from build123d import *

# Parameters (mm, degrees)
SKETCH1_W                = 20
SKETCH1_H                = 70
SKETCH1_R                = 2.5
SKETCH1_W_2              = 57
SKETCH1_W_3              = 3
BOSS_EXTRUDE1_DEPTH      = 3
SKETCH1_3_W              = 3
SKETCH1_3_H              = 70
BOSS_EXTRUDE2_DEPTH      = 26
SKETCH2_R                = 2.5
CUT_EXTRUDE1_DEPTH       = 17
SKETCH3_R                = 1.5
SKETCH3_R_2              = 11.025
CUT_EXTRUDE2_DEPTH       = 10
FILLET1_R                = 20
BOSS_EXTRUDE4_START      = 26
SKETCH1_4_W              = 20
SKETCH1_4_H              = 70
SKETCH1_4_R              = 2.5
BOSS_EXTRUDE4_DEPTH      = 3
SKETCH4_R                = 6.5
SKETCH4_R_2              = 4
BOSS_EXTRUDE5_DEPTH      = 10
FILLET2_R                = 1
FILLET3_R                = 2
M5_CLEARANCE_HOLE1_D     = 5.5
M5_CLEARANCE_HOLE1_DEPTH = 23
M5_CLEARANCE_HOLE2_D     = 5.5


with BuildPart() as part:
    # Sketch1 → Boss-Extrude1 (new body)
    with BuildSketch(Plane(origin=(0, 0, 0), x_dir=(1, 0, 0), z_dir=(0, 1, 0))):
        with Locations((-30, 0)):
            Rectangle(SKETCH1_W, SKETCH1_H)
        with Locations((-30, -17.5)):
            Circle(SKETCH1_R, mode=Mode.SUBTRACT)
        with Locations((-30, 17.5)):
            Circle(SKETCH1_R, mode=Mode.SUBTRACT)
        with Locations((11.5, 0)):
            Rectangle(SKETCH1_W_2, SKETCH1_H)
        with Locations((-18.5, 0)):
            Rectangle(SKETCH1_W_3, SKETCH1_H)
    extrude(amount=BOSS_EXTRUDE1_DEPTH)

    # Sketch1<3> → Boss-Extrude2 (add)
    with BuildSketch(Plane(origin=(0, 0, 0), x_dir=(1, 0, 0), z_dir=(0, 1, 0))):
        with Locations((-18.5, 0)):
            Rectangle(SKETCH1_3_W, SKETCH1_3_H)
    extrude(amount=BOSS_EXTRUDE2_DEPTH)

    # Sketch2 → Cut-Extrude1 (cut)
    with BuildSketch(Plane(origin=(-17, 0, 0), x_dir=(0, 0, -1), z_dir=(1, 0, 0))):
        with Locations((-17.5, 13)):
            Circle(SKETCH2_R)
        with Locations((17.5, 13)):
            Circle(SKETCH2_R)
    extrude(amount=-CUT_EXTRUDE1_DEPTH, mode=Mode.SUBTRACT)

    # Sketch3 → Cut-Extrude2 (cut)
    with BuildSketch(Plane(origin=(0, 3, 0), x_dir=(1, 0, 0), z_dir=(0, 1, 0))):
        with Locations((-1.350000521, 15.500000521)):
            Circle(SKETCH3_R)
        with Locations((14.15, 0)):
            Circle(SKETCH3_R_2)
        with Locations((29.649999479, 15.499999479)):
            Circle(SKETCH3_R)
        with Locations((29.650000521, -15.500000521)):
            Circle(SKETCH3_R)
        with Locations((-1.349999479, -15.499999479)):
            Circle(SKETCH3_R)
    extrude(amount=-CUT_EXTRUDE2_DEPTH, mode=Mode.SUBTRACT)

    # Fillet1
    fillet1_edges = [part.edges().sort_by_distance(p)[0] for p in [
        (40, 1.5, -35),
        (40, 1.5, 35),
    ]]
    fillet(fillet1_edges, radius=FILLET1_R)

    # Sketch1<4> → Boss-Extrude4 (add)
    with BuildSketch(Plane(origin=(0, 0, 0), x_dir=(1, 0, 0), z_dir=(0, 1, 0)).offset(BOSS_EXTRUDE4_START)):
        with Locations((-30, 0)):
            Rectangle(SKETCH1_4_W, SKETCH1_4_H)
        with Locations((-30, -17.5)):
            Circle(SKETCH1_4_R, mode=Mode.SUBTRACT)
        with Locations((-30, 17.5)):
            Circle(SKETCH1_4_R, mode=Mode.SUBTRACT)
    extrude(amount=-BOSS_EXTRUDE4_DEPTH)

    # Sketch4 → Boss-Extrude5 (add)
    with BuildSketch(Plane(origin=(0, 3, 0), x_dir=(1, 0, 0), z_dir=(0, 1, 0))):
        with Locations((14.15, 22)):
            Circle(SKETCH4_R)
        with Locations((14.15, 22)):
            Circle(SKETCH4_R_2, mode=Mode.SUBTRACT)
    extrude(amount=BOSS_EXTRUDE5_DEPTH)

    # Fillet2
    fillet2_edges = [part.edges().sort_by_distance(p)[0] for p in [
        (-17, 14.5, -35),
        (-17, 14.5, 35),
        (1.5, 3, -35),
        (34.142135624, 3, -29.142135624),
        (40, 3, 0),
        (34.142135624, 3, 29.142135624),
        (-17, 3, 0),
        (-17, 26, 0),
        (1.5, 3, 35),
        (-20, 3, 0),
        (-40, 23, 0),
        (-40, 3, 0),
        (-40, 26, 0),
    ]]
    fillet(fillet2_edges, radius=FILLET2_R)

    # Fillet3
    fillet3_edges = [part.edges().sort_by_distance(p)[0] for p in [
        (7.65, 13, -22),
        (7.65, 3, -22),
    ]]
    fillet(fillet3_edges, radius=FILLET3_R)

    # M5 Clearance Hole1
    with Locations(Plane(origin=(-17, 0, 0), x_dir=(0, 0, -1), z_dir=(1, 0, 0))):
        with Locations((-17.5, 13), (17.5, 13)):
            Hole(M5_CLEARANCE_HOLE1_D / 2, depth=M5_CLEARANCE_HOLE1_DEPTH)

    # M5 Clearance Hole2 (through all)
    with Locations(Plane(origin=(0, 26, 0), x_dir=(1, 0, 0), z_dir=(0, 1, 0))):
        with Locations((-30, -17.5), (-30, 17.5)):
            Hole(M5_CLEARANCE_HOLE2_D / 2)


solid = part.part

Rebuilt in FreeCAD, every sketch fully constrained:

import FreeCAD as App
import Part
import Sketcher


def edges_at(feature, points):
    """Names of the edges that pass closest to the given points."""
    edges = feature.Shape.Edges
    near = lambda p: min(range(len(edges)), key=lambda i: edges[i].distToShape(Part.Vertex(*p))[0])
    return sorted({f"Edge{near(p) + 1}" for p in points})

doc = App.newDocument("Part")
params = doc.addObject("Spreadsheet::Sheet", "Params")
for row, (alias, value) in enumerate([
    ("sketch1_diameter", "5 mm"),
    ("sketch1_width", "80 mm"),
    ("sketch1_height", "70 mm"),
    ("pad1_length", "3 mm"),
    ("sketch2_width", "3 mm"),
    ("sketch2_height", "70 mm"),
    ("pad2_length", "26 mm"),
    ("sketch3_diameter", "5 mm"),
    ("pocket1_length", "17 mm"),
    ("sketch4_diameter", "3 mm"),
    ("sketch4_diameter2", "22.05 mm"),
    ("pocket2_length", "10 mm"),
    ("fillet_radius", "20 mm"),
    ("sketch5_diameter", "5 mm"),
    ("sketch5_width", "20 mm"),
    ("sketch5_height", "70 mm"),
    ("pad3_length", "3 mm"),
    ("sketch6_diameter", "13 mm"),
    ("sketch6_diameter2", "8 mm"),
    ("pad4_length", "10 mm"),
    ("fillet2_radius", "1 mm"),
    ("fillet3_radius", "2 mm"),
    ("sketch7_diameter", "5.5 mm"),
    ("hole_diameter", "5.5 mm"),
    ("hole_depth", "23 mm"),
    ("sketch8_diameter", "5.5 mm"),
    ("hole2_diameter", "5.5 mm"),
], start=1):
    params.set(f"A{row}", alias)
    params.set(f"B{row}", "=" + value)
    params.setAlias(f"B{row}", alias)

body = doc.addObject("PartDesign::Body", "Body")

# Sketch on XZ plane
sketch1 = body.newObject("Sketcher::SketchObject", "Sketch")
sketch1.AttachmentSupport = (doc.getObject("XZ_Plane"), [""])
sketch1.MapMode = "FlatFace"
sketch1.addGeometry(Part.LineSegment(App.Vector(-40, -35, 0), App.Vector(-40, 35, 0)), False)
sketch1.addGeometry(Part.LineSegment(App.Vector(-40, 35, 0), App.Vector(40, 35, 0)), False)
sketch1.addGeometry(Part.LineSegment(App.Vector(40, 35, 0), App.Vector(40, -35, 0)), False)
sketch1.addGeometry(Part.LineSegment(App.Vector(40, -35, 0), App.Vector(-40, -35, 0)), False)
sketch1.addGeometry(Part.Circle(App.Vector(-30, 17.5, 0), App.Vector(0, 0, 1), 2.5), False)
sketch1.addGeometry(Part.Circle(App.Vector(-30, -17.5, 0), App.Vector(0, 0, 1), 2.5), False)
sketch1.addConstraint(Sketcher.Constraint("Coincident", 0, 2, 1, 1))
sketch1.addConstraint(Sketcher.Constraint("Coincident", 1, 2, 2, 1))
sketch1.addConstraint(Sketcher.Constraint("Coincident", 2, 2, 3, 1))
sketch1.addConstraint(Sketcher.Constraint("Coincident", 3, 2, 0, 1))
sketch1.addConstraint(Sketcher.Constraint("Vertical", 0))
sketch1.addConstraint(Sketcher.Constraint("Horizontal", 1))
sketch1.addConstraint(Sketcher.Constraint("Vertical", 2))
sketch1.addConstraint(Sketcher.Constraint("Horizontal", 3))
sketch1.addConstraint(Sketcher.Constraint("Equal", 4, 5))
sketch1.addConstraint(Sketcher.Constraint("Symmetric", 0, 2, 2, 2, -1, 1))
sketch1.addConstraint(Sketcher.Constraint("Symmetric", 4, 3, 5, 3, -1))
sketch1.addConstraint(Sketcher.Constraint("Diameter", 4, 5.0))
sketch1.addConstraint(Sketcher.Constraint("DistanceX", 1, 1, 1, 2, 80.0))
sketch1.addConstraint(Sketcher.Constraint("DistanceY", 0, 1, 0, 2, 70.0))
sketch1.addConstraint(Sketcher.Constraint("DistanceX", 4, 3, -1, 1, 30.0))
sketch1.addConstraint(Sketcher.Constraint("DistanceY", 5, 3, 4, 3, 35.0))
sketch1.setExpression("Constraints[11]", "Params.sketch1_diameter")
sketch1.setExpression("Constraints[12]", "Params.sketch1_width")
sketch1.setExpression("Constraints[13]", "Params.sketch1_height")
pad1 = body.newObject("PartDesign::Pad", "Pad")
pad1.Profile = sketch1
pad1.setExpression("Length", "Params.pad1_length")
pad1.Reversed = True

# Sketch on XZ plane
sketch2 = body.newObject("Sketcher::SketchObject", "Sketch001")
sketch2.AttachmentSupport = (doc.getObject("XZ_Plane"), [""])
sketch2.MapMode = "FlatFace"
sketch2.addGeometry(Part.LineSegment(App.Vector(-20, -35, 0), App.Vector(-20, 35, 0)), False)
sketch2.addGeometry(Part.LineSegment(App.Vector(-20, 35, 0), App.Vector(-17, 35, 0)), False)
sketch2.addGeometry(Part.LineSegment(App.Vector(-17, 35, 0), App.Vector(-17, -35, 0)), False)
sketch2.addGeometry(Part.LineSegment(App.Vector(-17, -35, 0), App.Vector(-20, -35, 0)), False)
sketch2.addConstraint(Sketcher.Constraint("Coincident", 0, 2, 1, 1))
sketch2.addConstraint(Sketcher.Constraint("Coincident", 1, 2, 2, 1))
sketch2.addConstraint(Sketcher.Constraint("Coincident", 2, 2, 3, 1))
sketch2.addConstraint(Sketcher.Constraint("Coincident", 3, 2, 0, 1))
sketch2.addConstraint(Sketcher.Constraint("Vertical", 0))
sketch2.addConstraint(Sketcher.Constraint("Horizontal", 1))
sketch2.addConstraint(Sketcher.Constraint("Vertical", 2))
sketch2.addConstraint(Sketcher.Constraint("Horizontal", 3))
sketch2.addConstraint(Sketcher.Constraint("DistanceX", 1, 1, 1, 2, 3.0))
sketch2.addConstraint(Sketcher.Constraint("DistanceY", 0, 1, 0, 2, 70.0))
sketch2.addConstraint(Sketcher.Constraint("DistanceX", 0, 2, -1, 1, 20.0))
sketch2.addConstraint(Sketcher.Constraint("DistanceY", -1, 1, 0, 2, 35.0))
sketch2.setExpression("Constraints[8]", "Params.sketch2_width")
sketch2.setExpression("Constraints[9]", "Params.sketch2_height")
pad2 = body.newObject("PartDesign::Pad", "Pad001")
pad2.Profile = sketch2
pad2.setExpression("Length", "Params.pad2_length")
pad2.Reversed = True

# Sketch on YZ plane
sketch3 = body.newObject("Sketcher::SketchObject", "Sketch002")
sketch3.AttachmentSupport = (doc.getObject("YZ_Plane"), [""])
sketch3.MapMode = "FlatFace"
sketch3.AttachmentOffset = App.Placement(App.Vector(0, 0, -17), App.Rotation())
sketch3.addGeometry(Part.Circle(App.Vector(13, 17.5, 0), App.Vector(0, 0, 1), 2.5), False)
sketch3.addGeometry(Part.Circle(App.Vector(13, -17.5, 0), App.Vector(0, 0, 1), 2.5), False)
sketch3.addConstraint(Sketcher.Constraint("Equal", 0, 1))
sketch3.addConstraint(Sketcher.Constraint("Symmetric", 0, 3, 1, 3, -1))
sketch3.addConstraint(Sketcher.Constraint("Diameter", 0, 5.0))
sketch3.addConstraint(Sketcher.Constraint("DistanceX", -1, 1, 0, 3, 13.0))
sketch3.addConstraint(Sketcher.Constraint("DistanceY", 1, 3, 0, 3, 35.0))
sketch3.setExpression("Constraints[2]", "Params.sketch3_diameter")
pocket1 = body.newObject("PartDesign::Pocket", "Pocket")
pocket1.Profile = sketch3
pocket1.setExpression("Length", "Params.pocket1_length")

# Sketch on XZ plane
sketch4 = body.newObject("Sketcher::SketchObject", "Sketch003")
sketch4.AttachmentSupport = (doc.getObject("XZ_Plane"), [""])
sketch4.MapMode = "FlatFace"
sketch4.AttachmentOffset = App.Placement(App.Vector(0, 0, -3), App.Rotation())
sketch4.addGeometry(Part.Circle(App.Vector(-1.4, -15.5, 0), App.Vector(0, 0, 1), 1.5), False)
sketch4.addGeometry(Part.Circle(App.Vector(14.2, 0, 0), App.Vector(0, 0, 1), 11), False)
sketch4.addGeometry(Part.Circle(App.Vector(29.6, -15.5, 0), App.Vector(0, 0, 1), 1.5), False)
sketch4.addGeometry(Part.Circle(App.Vector(29.7, 15.5, 0), App.Vector(0, 0, 1), 1.5), False)
sketch4.addGeometry(Part.Circle(App.Vector(-1.3, 15.5, 0), App.Vector(0, 0, 1), 1.5), False)
sketch4.addConstraint(Sketcher.Constraint("Equal", 0, 2))
sketch4.addConstraint(Sketcher.Constraint("Equal", 2, 3))
sketch4.addConstraint(Sketcher.Constraint("Equal", 3, 4))
sketch4.addConstraint(Sketcher.Constraint("Symmetric", 2, 3, 3, 3, -1))
sketch4.addConstraint(Sketcher.Constraint("Symmetric", 0, 3, 4, 3, -1))
sketch4.addConstraint(Sketcher.Constraint("PointOnObject", 1, 3, -1))
sketch4.addConstraint(Sketcher.Constraint("Horizontal", 0, 3, 2, 3))
sketch4.addConstraint(Sketcher.Constraint("Diameter", 0, 3.0))
sketch4.addConstraint(Sketcher.Constraint("Diameter", 1, 22.05))
sketch4.addConstraint(Sketcher.Constraint("DistanceX", 0, 3, 2, 3, 31.0))
sketch4.addConstraint(Sketcher.Constraint("DistanceY", 2, 3, 3, 3, 31.0))
sketch4.addConstraint(Sketcher.Constraint("DistanceX", 0, 3, 1, 3, 15.500001))
sketch4.addConstraint(Sketcher.Constraint("DistanceX", 0, 3, -1, 1, 1.350001))
sketch4.setExpression("Constraints[7]", "Params.sketch4_diameter")
sketch4.setExpression("Constraints[8]", "Params.sketch4_diameter2")
pocket2 = body.newObject("PartDesign::Pocket", "Pocket001")
pocket2.Profile = sketch4
pocket2.setExpression("Length", "Params.pocket2_length")
pocket2.Reversed = True
doc.recompute()

fillet = body.newObject("PartDesign::Fillet", "Fillet")
fillet.Base = (pocket2, edges_at(pocket2, [(40, 1.5, -35), (40, 1.5, 35)]))
fillet.setExpression("Radius", "Params.fillet_radius")

# Sketch on XZ plane
sketch5 = body.newObject("Sketcher::SketchObject", "Sketch004")
sketch5.AttachmentSupport = (doc.getObject("XZ_Plane"), [""])
sketch5.MapMode = "FlatFace"
sketch5.AttachmentOffset = App.Placement(App.Vector(0, 0, -26), App.Rotation())
sketch5.addGeometry(Part.LineSegment(App.Vector(-40, -35, 0), App.Vector(-40, 35, 0)), False)
sketch5.addGeometry(Part.LineSegment(App.Vector(-40, 35, 0), App.Vector(-20, 35, 0)), False)
sketch5.addGeometry(Part.LineSegment(App.Vector(-20, 35, 0), App.Vector(-20, -35, 0)), False)
sketch5.addGeometry(Part.LineSegment(App.Vector(-20, -35, 0), App.Vector(-40, -35, 0)), False)
sketch5.addGeometry(Part.Circle(App.Vector(-30, 17.5, 0), App.Vector(0, 0, 1), 2.5), False)
sketch5.addGeometry(Part.Circle(App.Vector(-30, -17.5, 0), App.Vector(0, 0, 1), 2.5), False)
sketch5.addConstraint(Sketcher.Constraint("Coincident", 0, 2, 1, 1))
sketch5.addConstraint(Sketcher.Constraint("Coincident", 1, 2, 2, 1))
sketch5.addConstraint(Sketcher.Constraint("Coincident", 2, 2, 3, 1))
sketch5.addConstraint(Sketcher.Constraint("Coincident", 3, 2, 0, 1))
sketch5.addConstraint(Sketcher.Constraint("Vertical", 0))
sketch5.addConstraint(Sketcher.Constraint("Horizontal", 1))
sketch5.addConstraint(Sketcher.Constraint("Vertical", 2))
sketch5.addConstraint(Sketcher.Constraint("Horizontal", 3))
sketch5.addConstraint(Sketcher.Constraint("Equal", 4, 5))
sketch5.addConstraint(Sketcher.Constraint("Symmetric", 4, 3, 5, 3, -1))
sketch5.addConstraint(Sketcher.Constraint("Diameter", 4, 5.0))
sketch5.addConstraint(Sketcher.Constraint("DistanceX", 1, 1, 1, 2, 20.0))
sketch5.addConstraint(Sketcher.Constraint("DistanceY", 0, 1, 0, 2, 70.0))
sketch5.addConstraint(Sketcher.Constraint("DistanceX", 4, 3, -1, 1, 30.0))
sketch5.addConstraint(Sketcher.Constraint("DistanceX", 0, 2, -1, 1, 40.0))
sketch5.addConstraint(Sketcher.Constraint("DistanceY", -1, 1, 0, 2, 35.0))
sketch5.addConstraint(Sketcher.Constraint("DistanceY", 5, 3, 4, 3, 35.0))
sketch5.setExpression("Constraints[10]", "Params.sketch5_diameter")
sketch5.setExpression("Constraints[11]", "Params.sketch5_width")
sketch5.setExpression("Constraints[12]", "Params.sketch5_height")
pad3 = body.newObject("PartDesign::Pad", "Pad002")
pad3.Profile = sketch5
pad3.setExpression("Length", "Params.pad3_length")

# Sketch on XZ plane
sketch6 = body.newObject("Sketcher::SketchObject", "Sketch005")
sketch6.AttachmentSupport = (doc.getObject("XZ_Plane"), [""])
sketch6.MapMode = "FlatFace"
sketch6.AttachmentOffset = App.Placement(App.Vector(0, 0, -3), App.Rotation())
sketch6.addGeometry(Part.Circle(App.Vector(14.2, -22, 0), App.Vector(0, 0, 1), 6.5), False)
sketch6.addGeometry(Part.Circle(App.Vector(14.2, -22, 0), App.Vector(0, 0, 1), 4), False)
sketch6.addConstraint(Sketcher.Constraint("Coincident", 1, 3, 0, 3))
sketch6.addConstraint(Sketcher.Constraint("Diameter", 0, 13.0))
sketch6.addConstraint(Sketcher.Constraint("Diameter", 1, 8.0))
sketch6.addConstraint(Sketcher.Constraint("DistanceY", 0, 3, -1, 1, 22.0))
sketch6.addConstraint(Sketcher.Constraint("DistanceX", -1, 1, 0, 3, 14.15))
sketch6.setExpression("Constraints[1]", "Params.sketch6_diameter")
sketch6.setExpression("Constraints[2]", "Params.sketch6_diameter2")
pad4 = body.newObject("PartDesign::Pad", "Pad003")
pad4.Profile = sketch6
pad4.setExpression("Length", "Params.pad4_length")
pad4.Reversed = True
doc.recompute()

fillet2 = body.newObject("PartDesign::Fillet", "Fillet001")
fillet2.Base = (pad4, edges_at(pad4, [
    (-17, 14.5, -35),
    (-17, 14.5, 35),
    (1.5, 3, -35),
    (34.142, 3, -29.142),
    (40, 3, 0),
    (34.142, 3, 29.142),
    (-17, 3, 0),
    (-17, 26, 0),
    (1.5, 3, 35),
    (-20, 3, 0),
    (-40, 23, 0),
    (-40, 3, 0),
    (-40, 26, 0),
]))
fillet2.setExpression("Radius", "Params.fillet2_radius")
doc.recompute()

fillet3 = body.newObject("PartDesign::Fillet", "Fillet002")
fillet3.Base = (fillet2, edges_at(fillet2, [(7.65, 13, -22), (7.65, 3, -22)]))
fillet3.setExpression("Radius", "Params.fillet3_radius")

# Sketch on YZ plane
sketch7 = body.newObject("Sketcher::SketchObject", "Sketch006")
sketch7.AttachmentSupport = (doc.getObject("YZ_Plane"), [""])
sketch7.MapMode = "FlatFace"
sketch7.AttachmentOffset = App.Placement(App.Vector(0, 0, -17), App.Rotation())
sketch7.addGeometry(Part.Circle(App.Vector(13, 17.5, 0), App.Vector(0, 0, 1), 2.8), False)
sketch7.addGeometry(Part.Circle(App.Vector(13, -17.5, 0), App.Vector(0, 0, 1), 2.8), False)
sketch7.addConstraint(Sketcher.Constraint("Equal", 0, 1))
sketch7.addConstraint(Sketcher.Constraint("Symmetric", 0, 3, 1, 3, -1))
sketch7.addConstraint(Sketcher.Constraint("Diameter", 0, 5.5))
sketch7.addConstraint(Sketcher.Constraint("DistanceX", -1, 1, 0, 3, 13.0))
sketch7.addConstraint(Sketcher.Constraint("DistanceY", 1, 3, 0, 3, 35.0))
sketch7.setExpression("Constraints[2]", "Params.sketch7_diameter")
doc.recompute()
hole = body.newObject("PartDesign::Hole", "Hole")
hole.Profile = sketch7
hole.ThreadType = "None"
hole.setExpression("Diameter", "Params.hole_diameter")
hole.DepthType = "Dimension"
hole.setExpression("Depth", "Params.hole_depth")
hole.DrillPoint = "Flat"

# Sketch on XZ plane
sketch8 = body.newObject("Sketcher::SketchObject", "Sketch007")
sketch8.AttachmentSupport = (doc.getObject("XZ_Plane"), [""])
sketch8.MapMode = "FlatFace"
sketch8.AttachmentOffset = App.Placement(App.Vector(0, 0, -26), App.Rotation())
sketch8.addGeometry(Part.Circle(App.Vector(-30, 17.5, 0), App.Vector(0, 0, 1), 2.8), False)
sketch8.addGeometry(Part.Circle(App.Vector(-30, -17.5, 0), App.Vector(0, 0, 1), 2.8), False)
sketch8.addConstraint(Sketcher.Constraint("Equal", 0, 1))
sketch8.addConstraint(Sketcher.Constraint("Symmetric", 0, 3, 1, 3, -1))
sketch8.addConstraint(Sketcher.Constraint("Diameter", 0, 5.5))
sketch8.addConstraint(Sketcher.Constraint("DistanceX", 0, 3, -1, 1, 30.0))
sketch8.addConstraint(Sketcher.Constraint("DistanceY", 1, 3, 0, 3, 35.0))
sketch8.setExpression("Constraints[2]", "Params.sketch8_diameter")
doc.recompute()
hole2 = body.newObject("PartDesign::Hole", "Hole001")
hole2.Profile = sketch8
hole2.ThreadType = "None"
hole2.setExpression("Diameter", "Params.hole2_diameter")
hole2.DepthType = "ThroughAll"
hole2.Reversed = True

doc.recompute()
